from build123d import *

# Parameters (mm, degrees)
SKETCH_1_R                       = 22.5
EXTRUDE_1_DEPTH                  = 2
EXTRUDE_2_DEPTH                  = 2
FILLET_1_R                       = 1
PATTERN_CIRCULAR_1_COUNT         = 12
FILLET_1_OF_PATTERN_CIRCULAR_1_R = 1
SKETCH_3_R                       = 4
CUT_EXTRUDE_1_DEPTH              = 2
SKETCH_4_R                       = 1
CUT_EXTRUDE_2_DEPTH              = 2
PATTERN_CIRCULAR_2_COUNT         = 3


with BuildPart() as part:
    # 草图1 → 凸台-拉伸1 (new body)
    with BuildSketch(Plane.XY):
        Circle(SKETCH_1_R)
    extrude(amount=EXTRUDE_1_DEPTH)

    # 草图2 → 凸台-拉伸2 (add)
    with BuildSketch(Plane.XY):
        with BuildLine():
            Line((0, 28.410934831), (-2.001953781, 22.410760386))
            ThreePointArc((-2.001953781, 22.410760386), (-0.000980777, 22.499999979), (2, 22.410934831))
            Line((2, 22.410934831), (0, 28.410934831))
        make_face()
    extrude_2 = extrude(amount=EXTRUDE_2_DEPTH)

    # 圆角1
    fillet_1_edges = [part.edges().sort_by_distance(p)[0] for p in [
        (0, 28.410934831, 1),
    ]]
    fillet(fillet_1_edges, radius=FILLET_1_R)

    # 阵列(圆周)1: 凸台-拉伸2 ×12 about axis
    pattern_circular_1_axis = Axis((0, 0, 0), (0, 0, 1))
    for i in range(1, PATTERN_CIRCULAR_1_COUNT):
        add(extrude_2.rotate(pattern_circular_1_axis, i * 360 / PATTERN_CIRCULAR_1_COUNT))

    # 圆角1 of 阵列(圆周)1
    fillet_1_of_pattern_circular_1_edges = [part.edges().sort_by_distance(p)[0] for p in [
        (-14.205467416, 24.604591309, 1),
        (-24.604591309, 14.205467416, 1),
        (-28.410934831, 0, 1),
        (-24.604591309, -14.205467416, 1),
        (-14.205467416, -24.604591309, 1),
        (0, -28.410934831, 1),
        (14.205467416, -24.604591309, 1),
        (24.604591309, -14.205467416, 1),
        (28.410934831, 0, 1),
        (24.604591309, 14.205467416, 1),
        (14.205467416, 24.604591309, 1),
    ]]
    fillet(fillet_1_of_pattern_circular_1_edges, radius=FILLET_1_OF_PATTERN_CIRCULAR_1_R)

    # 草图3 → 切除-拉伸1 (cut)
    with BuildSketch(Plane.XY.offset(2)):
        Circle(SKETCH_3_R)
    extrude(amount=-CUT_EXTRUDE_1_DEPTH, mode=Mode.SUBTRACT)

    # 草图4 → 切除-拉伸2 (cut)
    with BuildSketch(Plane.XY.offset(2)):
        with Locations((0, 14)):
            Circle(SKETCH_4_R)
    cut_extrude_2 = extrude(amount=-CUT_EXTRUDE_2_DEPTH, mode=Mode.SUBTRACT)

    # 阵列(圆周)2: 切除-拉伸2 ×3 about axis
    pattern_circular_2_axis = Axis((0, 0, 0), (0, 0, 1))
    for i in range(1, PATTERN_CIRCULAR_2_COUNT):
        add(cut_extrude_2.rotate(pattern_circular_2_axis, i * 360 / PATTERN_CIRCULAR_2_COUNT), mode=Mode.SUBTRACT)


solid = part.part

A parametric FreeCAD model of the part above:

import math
import FreeCAD as App
import Part
import Sketcher

V = App.Vector


def edges_at(feature, points):
    """Names of the edges that pass closest to the given points."""
    edges = feature.Shape.Edges
    near = lambda p: min(range(len(edges)), key=lambda i: edges[i].distToShape(Part.Vertex(*p))[0])
    return sorted({f"Edge{near(p) + 1}" for p in points})

doc = App.newDocument("Part")
body = doc.addObject("PartDesign::Body", "Body")

sketch1 = body.newObject("Sketcher::SketchObject", "Sketch")
sketch1.AttachmentSupport = (doc.getObject("XY_Plane"), [""])
sketch1.MapMode = "FlatFace"
sketch1.addGeometry(Part.Circle(V(0, 0, 0), V(0, 0, 1), 22), False)
sketch1.addConstraint(Sketcher.Constraint("Coincident", 0, 3, -1, 1))
sketch1.addConstraint(Sketcher.Constraint("Diameter", 0, 45.0))
pad1 = body.newObject("PartDesign::Pad", "Pad")
pad1.Profile = sketch1
pad1.Length = 2

sketch2 = body.newObject("Sketcher::SketchObject", "Sketch001")
sketch2.AttachmentSupport = (doc.getObject("XY_Plane"), [""])
sketch2.MapMode = "FlatFace"
sketch2.addGeometry(Part.LineSegment(V(0, 28.4, 0), V(-2, 22.4, 0)), False)
sketch2.addGeometry(Part.ArcOfCircle(Part.Circle(V(0, 0, 0), V(0, 0, 1), 22.5), math.radians(84.9), math.radians(95.1)), False)
sketch2.addGeometry(Part.LineSegment(V(2, 22.4, 0), V(0, 28.4, 0)), False)
sketch2.addConstraint(Sketcher.Constraint("Coincident", 0, 2, 1, 2))
sketch2.addConstraint(Sketcher.Constraint("Coincident", 1, 1, 2, 1))
sketch2.addConstraint(Sketcher.Constraint("Coincident", 2, 2, 0, 1))
sketch2.addConstraint(Sketcher.Constraint("Coincident", 1, 3, -1, 1))
sketch2.addConstraint(Sketcher.Constraint("PointOnObject", 2, 2, -2))
sketch2.addConstraint(Sketcher.Constraint("Radius", 1, 22.5))
sketch2.addConstraint(Sketcher.Constraint("DistanceX", -1, 1, 1, 1, 2.0))
sketch2.addConstraint(Sketcher.Constraint("DistanceY", 1, 1, 2, 2, 6.0))
sketch2.addConstraint(Sketcher.Constraint("Distance", 0, 6.325339))
pad2 = body.newObject("PartDesign::Pad", "Pad001")
pad2.Profile = sketch2
pad2.Length = 2
doc.recompute()

fillet = body.newObject("PartDesign::Fillet", "Fillet")
fillet.Base = (pad2, edges_at(pad2, [(0, 28.411, 1)]))
fillet.Radius = 1
doc.recompute()

polarpattern = body.newObject("PartDesign::PolarPattern", "PolarPattern")
polarpattern.Originals = [pad2]
polarpattern.Axis = (doc.getObject("Z_Axis"), [""])
polarpattern.Angle = 360
polarpattern.Occurrences = 12
body.Tip = polarpattern
doc.recompute()

fillet2 = body.newObject("PartDesign::Fillet", "Fillet001")
fillet2.Base = (polarpattern, edges_at(polarpattern, [
    (-14.205, 24.605, 1),
    (-24.605, 14.205, 1),
    (-28.411, 0, 1),
    (-24.605, -14.205, 1),
    (-14.205, -24.605, 1),
    (0, -28.411, 1),
    (14.205, -24.605, 1),
    (24.605, -14.205, 1),
    (28.411, 0, 1),
    (24.605, 14.205, 1),
    (14.205, 24.605, 1),
]))
fillet2.Radius = 1

sketch3 = body.newObject("Sketcher::SketchObject", "Sketch002")
sketch3.AttachmentSupport = (doc.getObject("XY_Plane"), [""])
sketch3.MapMode = "FlatFace"
sketch3.AttachmentOffset = App.Placement(V(0, 0, 2), App.Rotation())
sketch3.addGeometry(Part.Circle(V(0, 0, 0), V(0, 0, 1), 4), False)
sketch3.addConstraint(Sketcher.Constraint("Coincident", 0, 3, -1, 1))
sketch3.addConstraint(Sketcher.Constraint("Diameter", 0, 8.0))
pocket1 = body.newObject("PartDesign::Pocket", "Pocket")
pocket1.Profile = sketch3
pocket1.Length = 2

sketch4 = body.newObject("Sketcher::SketchObject", "Sketch003")
sketch4.AttachmentSupport = (doc.getObject("XY_Plane"), [""])
sketch4.MapMode = "FlatFace"
sketch4.AttachmentOffset = App.Placement(V(0, 0, 2), App.Rotation())
sketch4.addGeometry(Part.Circle(V(0, 14, 0), V(0, 0, 1), 1), False)
sketch4.addConstraint(Sketcher.Constraint("PointOnObject", 0, 3, -2))
sketch4.addConstraint(Sketcher.Constraint("Diameter", 0, 2.0))
sketch4.addConstraint(Sketcher.Constraint("DistanceY", -1, 1, 0, 3, 14.0))
pocket2 = body.newObject("PartDesign::Pocket", "Pocket001")
pocket2.Profile = sketch4
pocket2.Length = 2
doc.recompute()

polarpattern2 = body.newObject("PartDesign::PolarPattern", "PolarPattern001")
polarpattern2.Originals = [pocket2]
polarpattern2.Axis = (doc.getObject("Z_Axis"), [""])
polarpattern2.Angle = 360
polarpattern2.Occurrences = 3
body.Tip = polarpattern2

doc.recompute()
